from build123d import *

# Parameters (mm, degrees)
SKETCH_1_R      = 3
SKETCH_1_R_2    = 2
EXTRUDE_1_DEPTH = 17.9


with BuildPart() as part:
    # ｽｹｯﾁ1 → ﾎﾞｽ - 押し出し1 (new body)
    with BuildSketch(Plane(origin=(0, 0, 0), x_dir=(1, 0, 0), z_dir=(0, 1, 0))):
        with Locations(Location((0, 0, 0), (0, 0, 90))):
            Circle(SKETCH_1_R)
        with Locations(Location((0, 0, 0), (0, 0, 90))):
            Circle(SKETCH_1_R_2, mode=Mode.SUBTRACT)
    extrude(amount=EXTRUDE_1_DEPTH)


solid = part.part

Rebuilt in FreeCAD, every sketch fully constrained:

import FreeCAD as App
import Part
import Sketcher
from FreeCAD import Vector
Q = App.Units.Quantity

doc = App.newDocument("Part")
params = doc.addObject("Spreadsheet::Sheet", "Params")
for row, (alias, value) in enumerate([
    ("sketch1_diameter", "6 mm"),
    ("sketch1_diameter2", "4 mm"),
    ("pad1_length", "17.9 mm"),
], start=1):
    params.set(f"A{row}", alias)
    params.set(f"B{row}", "=" + value)
    params.setAlias(f"B{row}", alias)

body = doc.addObject("PartDesign::Body", "Body")

sketch1 = body.newObject("Sketcher::SketchObject", "Sketch")
sketch1.AttachmentSupport = (doc.getObject("XZ_Plane"), [""])
sketch1.MapMode = "FlatFace"
sketch1.addGeometry([
    Part.Circle(Vector(0, 0, 0), Vector(0, 0, 1), 3),
    Part.Circle(Vector(0, 0, 0), Vector(0, 0, 1), 2),
], False)
sketch1.addConstraint([
    Sketcher.Constraint("Coincident", 0, 3, -1, 1),
    Sketcher.Constraint("Coincident", 1, 3, -1, 1),
    Sketcher.Constraint("Diameter", 0, Q("6 mm")),
    Sketcher.Constraint("Diameter", 1, Q("4 mm")),
])
sketch1.setExpression("Constraints[2]", "Params.sketch1_diameter")
sketch1.setExpression("Constraints[3]", "Params.sketch1_diameter2")
pad1 = body.newObject("PartDesign::Pad", "Pad")
pad1.Profile = sketch1
pad1.setExpression("Length", "Params.pad1_length")
pad1.Reversed = True

doc.recompute()
